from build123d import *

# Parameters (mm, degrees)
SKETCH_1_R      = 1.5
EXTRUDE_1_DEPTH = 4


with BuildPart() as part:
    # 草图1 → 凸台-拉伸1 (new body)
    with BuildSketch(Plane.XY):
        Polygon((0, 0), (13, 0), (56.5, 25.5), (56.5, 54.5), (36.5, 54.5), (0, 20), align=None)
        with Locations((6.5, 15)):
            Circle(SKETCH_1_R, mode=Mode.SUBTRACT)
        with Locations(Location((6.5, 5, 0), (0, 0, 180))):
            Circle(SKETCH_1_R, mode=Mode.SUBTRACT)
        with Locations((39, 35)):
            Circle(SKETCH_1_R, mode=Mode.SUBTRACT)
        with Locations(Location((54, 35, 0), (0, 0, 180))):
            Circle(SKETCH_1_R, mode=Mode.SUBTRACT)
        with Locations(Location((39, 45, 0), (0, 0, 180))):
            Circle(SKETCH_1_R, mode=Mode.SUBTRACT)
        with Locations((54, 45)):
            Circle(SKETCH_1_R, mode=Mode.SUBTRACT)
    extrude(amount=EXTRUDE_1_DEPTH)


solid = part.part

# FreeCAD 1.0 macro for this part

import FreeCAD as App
import Part
import Sketcher
from FreeCAD import Vector
Q = App.Units.Quantity


def add_polygon(sketch, points):
    """Adds a closed chain of lines whose ends are joined by coincident constraints."""
    first, n = sketch.GeometryCount, len(points)
    for a, b in zip(points, points[1:] + points[:1]):
        sketch.addGeometry(Part.LineSegment(App.Vector(*a, 0), App.Vector(*b, 0)), False)
    for i in range(n):
        sketch.addConstraint(Sketcher.Constraint("Coincident", first + i, 2, first + (i + 1) % n, 1))

doc = App.newDocument("Part")
body = doc.addObject("PartDesign::Body", "Body")

# Sketch on XY plane
sketch1 = body.newObject("Sketcher::SketchObject", "Sketch")
sketch1.AttachmentSupport = (doc.getObject("XY_Plane"), [""])
sketch1.MapMode = "FlatFace"
add_polygon(sketch1, [(0, 0), (13, 0), (56.5, 25.5), (56.5, 54.5), (36.5, 54.5), (0, 20)])  # lines 0-5
sketch1.addGeometry(Part.Circle(Vector(6.5, 5, 0), Vector(0, 0, 1), 1.5), False)  # 6
sketch1.addGeometry(Part.Circle(Vector(6.5, 15, 0), Vector(0, 0, 1), 1.5), False)  # 7
sketch1.addGeometry(Part.Circle(Vector(39, 35, 0), Vector(0, 0, 1), 1.5), False)  # 8
sketch1.addGeometry(Part.Circle(Vector(54, 35, 0), Vector(0, 0, 1), 1.5), False)  # 9
sketch1.addGeometry(Part.Circle(Vector(39, 45, 0), Vector(0, 0, 1), 1.5), False)  # 10
sketch1.addGeometry(Part.Circle(Vector(54, 45, 0), Vector(0, 0, 1), 1.5), False)  # 11
sketch1.addConstraint(Sketcher.Constraint("Horizontal", 0))
sketch1.addConstraint(Sketcher.Constraint("Vertical", 2))
sketch1.addConstraint(Sketcher.Constraint("Horizontal", 3))
sketch1.addConstraint(Sketcher.Constraint("Vertical", 5))
sketch1.addConstraint(Sketcher.Constraint("Coincident", 5, 2, -1, 1))
sketch1.addConstraint(Sketcher.Constraint("Equal", 6, 7))
sketch1.addConstraint(Sketcher.Constraint("Equal", 7, 8))
sketch1.addConstraint(Sketcher.Constraint("Equal", 8, 9))
sketch1.addConstraint(Sketcher.Constraint("Equal", 9, 10))
sketch1.addConstraint(Sketcher.Constraint("Equal", 10, 11))
sketch1.addConstraint(Sketcher.Constraint("Horizontal", 8, 3, 9, 3))
sketch1.addConstraint(Sketcher.Constraint("Horizontal", 10, 3, 11, 3))
sketch1.addConstraint(Sketcher.Constraint("Vertical", 6, 3, 7, 3))
sketch1.addConstraint(Sketcher.Constraint("Vertical", 8, 3, 10, 3))
sketch1.addConstraint(Sketcher.Constraint("Vertical", 9, 3, 11, 3))
sketch1.addConstraint(Sketcher.Constraint("Equal", 3, 5))
sketch1.addConstraint(Sketcher.Constraint("Diameter", 6, Q("3 mm")))
sketch1.addConstraint(Sketcher.Constraint("DistanceX", 0, 1, 0, 2, Q("13 mm")))
sketch1.addConstraint(Sketcher.Constraint("DistanceX", 3, 2, 3, 1, Q("20 mm")))
sketch1.addConstraint(Sketcher.Constraint("DistanceY", 2, 1, 2, 2, Q("29 mm")))
sketch1.addConstraint(Sketcher.Constraint("DistanceY", -1, 1, 6, 3, Q("5 mm")))
sketch1.addConstraint(Sketcher.Constraint("DistanceY", -1, 1, 7, 3, Q("15 mm")))
sketch1.addConstraint(Sketcher.Constraint("DistanceX", -1, 1, 8, 3, Q("39 mm")))
sketch1.addConstraint(Sketcher.Constraint("DistanceY", -1, 1, 8, 3, Q("35 mm")))
sketch1.addConstraint(Sketcher.Constraint("DistanceX", -1, 1, 9, 3, Q("54 mm")))
sketch1.addConstraint(Sketcher.Constraint("DistanceY", -1, 1, 10, 3, Q("45 mm")))
sketch1.addConstraint(Sketcher.Constraint("DistanceX", -1, 1, 6, 3, Q("6.5 mm")))
sketch1.addConstraint(Sketcher.Constraint("DistanceX", -1, 1, 1, 2, Q("56.5 mm")))
sketch1.addConstraint(Sketcher.Constraint("DistanceY", -1, 1, 1, 2, Q("25.5 mm")))
pad1 = body.newObject("PartDesign::Pad", "Pad")
pad1.Profile = sketch1
pad1.Length = 4

doc.recompute()
